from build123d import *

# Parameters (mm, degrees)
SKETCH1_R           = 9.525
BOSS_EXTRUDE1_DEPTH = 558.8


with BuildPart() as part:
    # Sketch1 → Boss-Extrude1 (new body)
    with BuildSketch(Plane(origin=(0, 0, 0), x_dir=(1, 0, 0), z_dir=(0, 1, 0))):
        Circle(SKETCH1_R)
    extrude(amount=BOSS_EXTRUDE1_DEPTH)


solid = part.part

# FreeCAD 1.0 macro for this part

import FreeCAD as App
import Part
import Sketcher
Q = App.Units.Quantity

doc = App.newDocument("Part")
params = doc.addObject("Spreadsheet::Sheet", "Params")
for row, (alias, value) in enumerate([
    ("sketch1_diameter", "0.75 in"),
    ("pad1_length", "22 in"),
], start=1):
    params.set(f"A{row}", alias)
    params.set(f"B{row}", "=" + value)
    params.setAlias(f"B{row}", alias)

body = doc.addObject("PartDesign::Body", "Body")

# Sketch on XZ plane
sketch1 = doc.addObject("Sketcher::SketchObject", "Sketch")
body.addObject(sketch1)
sketch1.AttachmentSupport = (doc.XZ_Plane, [""])
sketch1.MapMode = "FlatFace"
sketch1.addGeometry(Part.Circle(App.Vector(0, 0, 0), App.Vector(0, 0, 1), 10), False)
sketch1.addConstraint([
    Sketcher.Constraint("Coincident", 0, 3, -1, 1),
    Sketcher.Constraint("Diameter", 0, Q("0.75 in")),
])
sketch1.setExpression("Constraints[1]", "Params.sketch1_diameter")
pad1 = doc.addObject("PartDesign::Pad", "Pad")
body.addObject(pad1)
pad1.Profile = sketch1
pad1.setExpression("Length", "Params.pad1_length")
pad1.Reversed = True

doc.recompute()
